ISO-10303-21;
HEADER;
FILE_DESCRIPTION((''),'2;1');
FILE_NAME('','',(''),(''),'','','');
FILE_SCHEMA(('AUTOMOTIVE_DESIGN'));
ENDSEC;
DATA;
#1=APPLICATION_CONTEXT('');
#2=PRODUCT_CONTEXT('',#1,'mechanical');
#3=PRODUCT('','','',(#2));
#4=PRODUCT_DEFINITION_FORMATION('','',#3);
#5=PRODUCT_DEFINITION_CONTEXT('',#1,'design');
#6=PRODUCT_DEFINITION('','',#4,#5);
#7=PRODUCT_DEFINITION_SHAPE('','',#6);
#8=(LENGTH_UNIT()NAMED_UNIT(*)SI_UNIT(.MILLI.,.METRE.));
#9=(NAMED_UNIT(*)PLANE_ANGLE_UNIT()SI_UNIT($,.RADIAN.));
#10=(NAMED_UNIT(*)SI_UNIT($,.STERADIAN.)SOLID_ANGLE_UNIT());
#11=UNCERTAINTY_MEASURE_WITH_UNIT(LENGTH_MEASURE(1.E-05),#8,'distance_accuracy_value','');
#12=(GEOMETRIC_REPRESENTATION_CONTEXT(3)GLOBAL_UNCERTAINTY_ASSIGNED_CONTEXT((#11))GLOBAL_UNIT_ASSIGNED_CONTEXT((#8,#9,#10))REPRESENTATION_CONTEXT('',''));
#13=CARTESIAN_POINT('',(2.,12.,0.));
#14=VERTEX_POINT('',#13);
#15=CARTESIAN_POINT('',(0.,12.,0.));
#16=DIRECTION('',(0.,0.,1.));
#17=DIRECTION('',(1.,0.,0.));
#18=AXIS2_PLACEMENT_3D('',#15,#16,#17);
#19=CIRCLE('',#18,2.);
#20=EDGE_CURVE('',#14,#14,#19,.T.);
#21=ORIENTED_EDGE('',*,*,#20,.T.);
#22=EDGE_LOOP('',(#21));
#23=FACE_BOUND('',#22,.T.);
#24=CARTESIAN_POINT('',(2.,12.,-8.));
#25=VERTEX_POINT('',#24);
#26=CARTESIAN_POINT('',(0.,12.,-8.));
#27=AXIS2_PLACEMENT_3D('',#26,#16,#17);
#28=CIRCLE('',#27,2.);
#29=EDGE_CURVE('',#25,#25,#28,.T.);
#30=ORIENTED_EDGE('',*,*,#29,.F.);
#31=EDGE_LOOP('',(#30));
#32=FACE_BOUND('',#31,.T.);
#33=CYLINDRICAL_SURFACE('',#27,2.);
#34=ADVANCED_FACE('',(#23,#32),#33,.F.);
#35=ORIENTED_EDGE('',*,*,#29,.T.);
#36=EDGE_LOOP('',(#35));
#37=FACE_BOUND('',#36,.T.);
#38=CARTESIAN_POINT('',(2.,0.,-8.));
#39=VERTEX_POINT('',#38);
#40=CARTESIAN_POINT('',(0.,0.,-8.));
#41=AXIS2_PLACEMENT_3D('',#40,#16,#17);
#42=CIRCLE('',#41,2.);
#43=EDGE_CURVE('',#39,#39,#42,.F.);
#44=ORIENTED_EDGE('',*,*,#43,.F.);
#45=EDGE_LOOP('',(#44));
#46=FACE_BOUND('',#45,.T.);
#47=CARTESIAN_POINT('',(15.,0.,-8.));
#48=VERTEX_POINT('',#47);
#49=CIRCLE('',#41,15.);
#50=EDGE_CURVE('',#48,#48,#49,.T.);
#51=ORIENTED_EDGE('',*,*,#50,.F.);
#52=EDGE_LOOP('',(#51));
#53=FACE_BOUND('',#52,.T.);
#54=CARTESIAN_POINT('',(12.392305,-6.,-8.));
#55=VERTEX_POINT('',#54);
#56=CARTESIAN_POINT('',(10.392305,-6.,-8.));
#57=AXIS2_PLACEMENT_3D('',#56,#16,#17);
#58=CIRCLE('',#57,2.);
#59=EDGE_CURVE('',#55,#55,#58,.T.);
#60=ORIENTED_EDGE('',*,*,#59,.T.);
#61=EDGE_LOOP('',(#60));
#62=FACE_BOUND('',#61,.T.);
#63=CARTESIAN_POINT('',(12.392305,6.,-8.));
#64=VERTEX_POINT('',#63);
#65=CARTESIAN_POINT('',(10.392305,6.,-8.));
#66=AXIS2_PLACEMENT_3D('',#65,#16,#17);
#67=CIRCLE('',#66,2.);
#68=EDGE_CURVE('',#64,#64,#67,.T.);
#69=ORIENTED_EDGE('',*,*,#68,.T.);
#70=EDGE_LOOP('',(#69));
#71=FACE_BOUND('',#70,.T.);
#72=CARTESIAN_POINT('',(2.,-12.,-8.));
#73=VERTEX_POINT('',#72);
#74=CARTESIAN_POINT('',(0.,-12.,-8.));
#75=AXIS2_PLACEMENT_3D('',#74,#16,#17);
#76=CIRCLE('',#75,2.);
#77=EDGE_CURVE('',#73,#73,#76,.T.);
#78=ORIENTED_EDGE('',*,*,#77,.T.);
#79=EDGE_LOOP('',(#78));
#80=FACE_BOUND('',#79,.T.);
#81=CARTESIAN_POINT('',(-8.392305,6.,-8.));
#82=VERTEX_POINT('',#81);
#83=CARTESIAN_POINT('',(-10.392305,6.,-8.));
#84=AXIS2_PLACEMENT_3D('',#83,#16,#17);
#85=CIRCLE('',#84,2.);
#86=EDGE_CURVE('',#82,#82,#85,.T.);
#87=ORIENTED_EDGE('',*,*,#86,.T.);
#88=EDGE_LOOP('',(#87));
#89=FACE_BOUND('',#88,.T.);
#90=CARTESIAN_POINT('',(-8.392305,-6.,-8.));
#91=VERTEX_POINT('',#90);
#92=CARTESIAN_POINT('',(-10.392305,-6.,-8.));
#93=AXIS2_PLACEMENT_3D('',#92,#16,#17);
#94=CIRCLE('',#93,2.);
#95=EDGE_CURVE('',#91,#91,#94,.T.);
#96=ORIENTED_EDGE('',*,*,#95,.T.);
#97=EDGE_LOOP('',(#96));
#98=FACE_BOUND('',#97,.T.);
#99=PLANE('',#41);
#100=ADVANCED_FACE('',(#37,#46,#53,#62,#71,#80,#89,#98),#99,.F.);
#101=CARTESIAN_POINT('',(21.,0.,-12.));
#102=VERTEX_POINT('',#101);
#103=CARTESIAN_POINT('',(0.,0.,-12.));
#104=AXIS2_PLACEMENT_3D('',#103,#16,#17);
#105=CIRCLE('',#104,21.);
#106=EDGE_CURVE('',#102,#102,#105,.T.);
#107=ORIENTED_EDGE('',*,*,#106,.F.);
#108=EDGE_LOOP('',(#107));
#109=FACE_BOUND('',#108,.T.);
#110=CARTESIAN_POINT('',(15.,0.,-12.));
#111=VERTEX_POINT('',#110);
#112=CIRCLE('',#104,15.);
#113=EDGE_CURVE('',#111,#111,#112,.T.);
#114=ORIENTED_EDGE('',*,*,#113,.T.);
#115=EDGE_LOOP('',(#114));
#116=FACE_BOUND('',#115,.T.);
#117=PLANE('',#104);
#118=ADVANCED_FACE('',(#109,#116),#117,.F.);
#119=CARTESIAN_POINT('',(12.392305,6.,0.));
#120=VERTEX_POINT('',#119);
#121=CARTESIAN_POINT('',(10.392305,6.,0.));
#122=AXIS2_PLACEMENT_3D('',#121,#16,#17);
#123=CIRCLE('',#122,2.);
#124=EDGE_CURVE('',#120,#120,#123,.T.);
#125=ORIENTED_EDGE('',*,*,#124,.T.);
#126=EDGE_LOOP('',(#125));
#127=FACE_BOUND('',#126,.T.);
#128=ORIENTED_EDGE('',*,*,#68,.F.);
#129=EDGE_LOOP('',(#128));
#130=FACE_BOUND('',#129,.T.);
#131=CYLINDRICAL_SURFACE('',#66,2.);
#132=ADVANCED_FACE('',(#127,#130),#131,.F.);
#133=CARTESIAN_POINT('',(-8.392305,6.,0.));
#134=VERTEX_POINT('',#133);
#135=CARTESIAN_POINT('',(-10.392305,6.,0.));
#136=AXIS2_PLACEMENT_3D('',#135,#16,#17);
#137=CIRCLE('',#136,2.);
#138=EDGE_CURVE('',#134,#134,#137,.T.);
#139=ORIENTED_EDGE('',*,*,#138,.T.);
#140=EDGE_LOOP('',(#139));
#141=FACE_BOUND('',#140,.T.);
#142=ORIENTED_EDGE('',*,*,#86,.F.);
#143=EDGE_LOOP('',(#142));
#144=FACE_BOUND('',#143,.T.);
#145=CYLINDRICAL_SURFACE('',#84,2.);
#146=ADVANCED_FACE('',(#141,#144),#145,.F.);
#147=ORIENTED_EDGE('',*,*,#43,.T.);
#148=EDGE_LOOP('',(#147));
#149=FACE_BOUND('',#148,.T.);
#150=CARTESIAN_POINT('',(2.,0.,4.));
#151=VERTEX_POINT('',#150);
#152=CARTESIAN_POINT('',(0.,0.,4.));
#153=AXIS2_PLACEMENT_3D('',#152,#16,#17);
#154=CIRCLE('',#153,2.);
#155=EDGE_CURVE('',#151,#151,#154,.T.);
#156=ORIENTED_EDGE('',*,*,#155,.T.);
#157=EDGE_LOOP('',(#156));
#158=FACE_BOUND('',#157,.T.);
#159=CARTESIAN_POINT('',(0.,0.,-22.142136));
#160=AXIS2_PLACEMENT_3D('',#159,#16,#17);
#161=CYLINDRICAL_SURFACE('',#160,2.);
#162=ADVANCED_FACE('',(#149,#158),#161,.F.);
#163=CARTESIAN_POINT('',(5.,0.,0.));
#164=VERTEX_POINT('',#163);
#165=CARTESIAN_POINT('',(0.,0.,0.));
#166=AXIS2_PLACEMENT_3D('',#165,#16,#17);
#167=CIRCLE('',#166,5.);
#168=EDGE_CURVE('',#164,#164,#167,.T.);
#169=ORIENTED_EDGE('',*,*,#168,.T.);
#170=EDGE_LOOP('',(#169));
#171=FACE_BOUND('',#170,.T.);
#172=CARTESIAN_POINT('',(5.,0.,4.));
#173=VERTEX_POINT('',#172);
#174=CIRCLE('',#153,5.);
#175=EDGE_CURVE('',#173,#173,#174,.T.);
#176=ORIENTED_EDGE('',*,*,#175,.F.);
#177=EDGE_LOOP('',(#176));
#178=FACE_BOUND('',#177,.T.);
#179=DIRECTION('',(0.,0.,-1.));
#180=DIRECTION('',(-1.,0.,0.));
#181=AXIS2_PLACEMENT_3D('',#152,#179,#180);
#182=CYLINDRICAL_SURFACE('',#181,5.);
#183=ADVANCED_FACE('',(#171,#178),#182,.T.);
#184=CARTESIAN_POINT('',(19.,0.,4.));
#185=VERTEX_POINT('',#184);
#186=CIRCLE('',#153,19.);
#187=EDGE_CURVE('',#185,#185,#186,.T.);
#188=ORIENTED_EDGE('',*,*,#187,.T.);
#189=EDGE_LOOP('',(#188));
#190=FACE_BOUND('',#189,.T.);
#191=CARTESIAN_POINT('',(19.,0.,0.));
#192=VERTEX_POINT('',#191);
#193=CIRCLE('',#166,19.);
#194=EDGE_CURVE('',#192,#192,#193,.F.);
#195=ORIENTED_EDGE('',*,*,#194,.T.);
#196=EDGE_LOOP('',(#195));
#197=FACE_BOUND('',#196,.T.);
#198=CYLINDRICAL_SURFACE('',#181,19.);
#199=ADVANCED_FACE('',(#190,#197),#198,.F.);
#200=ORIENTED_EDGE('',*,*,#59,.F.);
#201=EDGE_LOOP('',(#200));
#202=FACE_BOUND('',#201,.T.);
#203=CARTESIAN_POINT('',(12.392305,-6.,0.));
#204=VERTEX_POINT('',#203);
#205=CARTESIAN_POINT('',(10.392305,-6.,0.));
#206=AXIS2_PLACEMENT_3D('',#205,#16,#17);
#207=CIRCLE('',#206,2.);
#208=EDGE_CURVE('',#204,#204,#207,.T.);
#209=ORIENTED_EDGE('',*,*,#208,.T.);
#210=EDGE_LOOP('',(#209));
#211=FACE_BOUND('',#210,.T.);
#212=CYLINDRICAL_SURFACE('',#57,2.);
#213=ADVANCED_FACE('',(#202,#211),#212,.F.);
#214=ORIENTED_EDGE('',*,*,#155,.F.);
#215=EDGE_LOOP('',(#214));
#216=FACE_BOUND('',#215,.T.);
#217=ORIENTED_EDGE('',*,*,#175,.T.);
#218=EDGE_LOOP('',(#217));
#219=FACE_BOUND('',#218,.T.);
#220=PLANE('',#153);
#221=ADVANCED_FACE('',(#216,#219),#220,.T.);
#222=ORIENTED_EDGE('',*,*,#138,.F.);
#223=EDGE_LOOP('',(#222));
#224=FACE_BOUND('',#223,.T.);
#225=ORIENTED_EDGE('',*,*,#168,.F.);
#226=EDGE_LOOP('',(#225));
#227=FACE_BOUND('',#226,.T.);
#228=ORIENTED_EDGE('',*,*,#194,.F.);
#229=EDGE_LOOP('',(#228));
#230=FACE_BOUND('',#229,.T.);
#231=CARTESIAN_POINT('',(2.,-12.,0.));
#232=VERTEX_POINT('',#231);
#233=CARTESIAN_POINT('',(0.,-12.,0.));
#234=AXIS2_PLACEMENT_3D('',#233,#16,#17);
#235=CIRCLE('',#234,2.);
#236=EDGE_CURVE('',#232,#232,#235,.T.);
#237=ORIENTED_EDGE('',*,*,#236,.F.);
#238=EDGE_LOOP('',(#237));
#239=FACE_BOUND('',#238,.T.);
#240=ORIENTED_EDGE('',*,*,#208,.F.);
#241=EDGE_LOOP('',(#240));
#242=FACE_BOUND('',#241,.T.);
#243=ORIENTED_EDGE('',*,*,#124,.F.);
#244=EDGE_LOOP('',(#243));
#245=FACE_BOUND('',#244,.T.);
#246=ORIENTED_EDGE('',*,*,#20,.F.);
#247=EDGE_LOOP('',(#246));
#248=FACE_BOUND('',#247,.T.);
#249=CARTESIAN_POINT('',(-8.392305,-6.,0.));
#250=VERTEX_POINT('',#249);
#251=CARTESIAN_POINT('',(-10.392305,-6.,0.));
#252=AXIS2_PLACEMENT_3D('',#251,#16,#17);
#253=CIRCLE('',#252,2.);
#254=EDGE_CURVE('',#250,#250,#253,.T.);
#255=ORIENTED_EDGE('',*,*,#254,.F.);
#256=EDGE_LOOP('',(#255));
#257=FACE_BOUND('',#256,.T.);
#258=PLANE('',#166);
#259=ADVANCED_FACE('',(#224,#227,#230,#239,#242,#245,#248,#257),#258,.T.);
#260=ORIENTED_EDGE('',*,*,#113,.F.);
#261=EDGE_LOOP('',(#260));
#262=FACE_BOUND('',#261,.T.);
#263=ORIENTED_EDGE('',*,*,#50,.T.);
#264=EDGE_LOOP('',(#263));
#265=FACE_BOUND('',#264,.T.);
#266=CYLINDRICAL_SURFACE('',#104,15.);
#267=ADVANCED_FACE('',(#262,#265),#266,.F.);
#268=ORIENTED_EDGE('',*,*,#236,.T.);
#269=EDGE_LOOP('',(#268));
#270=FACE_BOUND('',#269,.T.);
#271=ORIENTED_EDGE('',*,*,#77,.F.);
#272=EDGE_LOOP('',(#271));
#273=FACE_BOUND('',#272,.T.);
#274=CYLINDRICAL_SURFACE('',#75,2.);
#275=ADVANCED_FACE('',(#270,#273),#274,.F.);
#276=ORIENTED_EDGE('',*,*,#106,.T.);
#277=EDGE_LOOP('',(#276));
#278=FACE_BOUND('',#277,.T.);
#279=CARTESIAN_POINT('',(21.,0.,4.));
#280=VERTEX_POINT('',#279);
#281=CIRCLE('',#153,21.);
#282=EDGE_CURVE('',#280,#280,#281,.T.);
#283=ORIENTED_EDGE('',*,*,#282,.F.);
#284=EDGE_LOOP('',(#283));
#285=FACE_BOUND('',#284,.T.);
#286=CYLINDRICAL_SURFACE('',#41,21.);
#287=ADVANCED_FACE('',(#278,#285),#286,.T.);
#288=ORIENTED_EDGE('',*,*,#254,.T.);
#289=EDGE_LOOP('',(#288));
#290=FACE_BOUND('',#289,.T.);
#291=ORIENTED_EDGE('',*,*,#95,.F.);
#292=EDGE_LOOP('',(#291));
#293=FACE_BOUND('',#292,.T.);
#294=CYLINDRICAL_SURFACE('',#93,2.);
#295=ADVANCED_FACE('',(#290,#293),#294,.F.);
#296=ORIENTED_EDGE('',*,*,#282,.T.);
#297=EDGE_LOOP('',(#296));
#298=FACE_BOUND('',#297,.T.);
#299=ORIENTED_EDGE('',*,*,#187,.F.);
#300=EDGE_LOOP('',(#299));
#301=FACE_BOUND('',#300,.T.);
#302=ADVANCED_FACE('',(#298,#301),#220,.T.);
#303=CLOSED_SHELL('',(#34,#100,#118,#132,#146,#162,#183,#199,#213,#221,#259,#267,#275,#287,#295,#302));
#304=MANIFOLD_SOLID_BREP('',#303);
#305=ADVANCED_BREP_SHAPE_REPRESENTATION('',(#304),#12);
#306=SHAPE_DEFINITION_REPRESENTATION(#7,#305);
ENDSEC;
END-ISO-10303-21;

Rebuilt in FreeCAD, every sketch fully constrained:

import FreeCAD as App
import Part
import Sketcher
from FreeCAD import Vector

doc = App.newDocument("Part")
body = doc.addObject("PartDesign::Body", "Body")

# Sketch on XY plane
sketch1 = body.newObject("Sketcher::SketchObject", "Sketch")
sketch1.AttachmentSupport = (doc.getObject("XY_Plane"), [""])
sketch1.MapMode = "FlatFace"
sketch1.addGeometry(Part.Circle(Vector(0, 0, 0), Vector(0, 0, 1), 21), False)
sketch1.addGeometry(Part.Circle(Vector(0, -12, 0), Vector(0, 0, 1), 2), False)
sketch1.addGeometry(Part.Circle(Vector(-10.392305, -6, 0), Vector(0, 0, 1), 2), False)
sketch1.addGeometry(Part.Circle(Vector(10.392305, -6, 0), Vector(0, 0, 1), 2), False)
sketch1.addGeometry(Part.Circle(Vector(-10.392305, 6, 0), Vector(0, 0, 1), 2), False)
sketch1.addGeometry(Part.Circle(Vector(0, 0, 0), Vector(0, 0, 1), 5), False)
sketch1.addGeometry(Part.Circle(Vector(0, 12, 0), Vector(0, 0, 1), 2), False)
sketch1.addGeometry(Part.Circle(Vector(10.392305, 6, 0), Vector(0, 0, 1), 2), False)
sketch1.addConstraint(Sketcher.Constraint("Coincident", 0, 3, -1, 1))
sketch1.addConstraint(Sketcher.Constraint("Coincident", 5, 3, -1, 1))
sketch1.addConstraint(Sketcher.Constraint("Equal", 1, 2))
sketch1.addConstraint(Sketcher.Constraint("Equal", 2, 3))
sketch1.addConstraint(Sketcher.Constraint("Equal", 3, 4))
sketch1.addConstraint(Sketcher.Constraint("Equal", 4, 6))
sketch1.addConstraint(Sketcher.Constraint("Equal", 6, 7))
sketch1.addConstraint(Sketcher.Constraint("Symmetric", 3, 3, 4, 3, -1, 1))
sketch1.addConstraint(Sketcher.Constraint("Symmetric", 1, 3, 6, 3, -1, 1))
sketch1.addConstraint(Sketcher.Constraint("Symmetric", 2, 3, 7, 3, -1, 1))
sketch1.addConstraint(Sketcher.Constraint("Symmetric", 2, 3, 3, 3, -2))
sketch1.addConstraint(Sketcher.Constraint("PointOnObject", 1, 3, -2))
sketch1.addConstraint(Sketcher.Constraint("Diameter", 0, 42.0))
sketch1.addConstraint(Sketcher.Constraint("Diameter", 1, 4.0))
sketch1.addConstraint(Sketcher.Constraint("Diameter", 5, 10.0))
sketch1.addConstraint(Sketcher.Constraint("DistanceY", 1, 3, -1, 1, 12.0))
sketch1.addConstraint(Sketcher.Constraint("DistanceY", 2, 3, -1, 1, 6.0))
sketch1.addConstraint(Sketcher.Constraint("DistanceX", 2, 3, 3, 3, 20.78461))
pad1 = body.newObject("PartDesign::Pad", "Pad")
pad1.Profile = sketch1
pad1.Length = 8
pad1.Reversed = True

# Sketch on XY plane
sketch2 = body.newObject("Sketcher::SketchObject", "Sketch001")
sketch2.AttachmentSupport = (doc.getObject("XY_Plane"), [""])
sketch2.MapMode = "FlatFace"
sketch2.AttachmentOffset = App.Placement(Vector(0, 0, 4), App.Rotation())
sketch2.addGeometry(Part.Circle(Vector(0, 0, 0), Vector(0, 0, 1), 21), False)
sketch2.addGeometry(Part.Circle(Vector(0, 0, 0), Vector(0, 0, 1), 19), False)
sketch2.addConstraint(Sketcher.Constraint("Coincident", 0, 3, -1, 1))
sketch2.addConstraint(Sketcher.Constraint("Coincident", 1, 3, -1, 1))
sketch2.addConstraint(Sketcher.Constraint("Diameter", 0, 42.0))
sketch2.addConstraint(Sketcher.Constraint("Diameter", 1, 38.0))
pad2 = body.newObject("PartDesign::Pad", "Pad001")
pad2.Profile = sketch2
pad2.Length = 4
pad2.Reversed = True

# Sketch on XY plane
sketch3 = body.newObject("Sketcher::SketchObject", "Sketch002")
sketch3.AttachmentSupport = (doc.getObject("XY_Plane"), [""])
sketch3.MapMode = "FlatFace"
sketch3.addGeometry(Part.Circle(Vector(0, 0, 0), Vector(0, 0, 1), 21), False)
sketch3.addGeometry(Part.Circle(Vector(0, 0, 0), Vector(0, 0, 1), 15), False)
sketch3.addConstraint(Sketcher.Constraint("Coincident", 0, 3, -1, 1))
sketch3.addConstraint(Sketcher.Constraint("Coincident", 1, 3, -1, 1))
sketch3.addConstraint(Sketcher.Constraint("Diameter", 0, 42.0))
sketch3.addConstraint(Sketcher.Constraint("Diameter", 1, 30.0))
pad3 = body.newObject("PartDesign::Pad", "Pad002")
pad3.Profile = sketch3
pad3.Length = 12
pad3.Reversed = True
body2 = doc.addObject("PartDesign::Body", "Body001")

# Sketch on XY plane
sketch4 = body2.newObject("Sketcher::SketchObject", "Sketch003")
sketch4.AttachmentSupport = (doc.getObject("XY_Plane001"), [""])
sketch4.MapMode = "FlatFace"
sketch4.addGeometry(Part.Circle(Vector(0, 0, 0), Vector(0, 0, 1), 5), False)
sketch4.addGeometry(Part.Circle(Vector(0, 0, 0), Vector(0, 0, 1), 2), False)
sketch4.addConstraint(Sketcher.Constraint("Coincident", 0, 3, -1, 1))
sketch4.addConstraint(Sketcher.Constraint("Coincident", 1, 3, -1, 1))
sketch4.addConstraint(Sketcher.Constraint("Diameter", 0, 10.0))
sketch4.addConstraint(Sketcher.Constraint("Diameter", 1, 4.0))
pad4 = body2.newObject("PartDesign::Pad", "Pad003")
pad4.Profile = sketch4
pad4.Length = 4

# Sketch on XY plane
sketch5 = body2.newObject("Sketcher::SketchObject", "Sketch004")
sketch5.AttachmentSupport = (doc.getObject("XY_Plane001"), [""])
sketch5.MapMode = "FlatFace"
sketch5.AttachmentOffset = App.Placement(Vector(0, 0, 4), App.Rotation())
sketch5.addGeometry(Part.Circle(Vector(0, 0, 0), Vector(0, 0, 1), 5), False)
sketch5.addGeometry(Part.Circle(Vector(0, 0, 0), Vector(0, 0, 1), 2), False)
sketch5.addConstraint(Sketcher.Constraint("Coincident", 0, 3, -1, 1))
sketch5.addConstraint(Sketcher.Constraint("Coincident", 1, 3, -1, 1))
sketch5.addConstraint(Sketcher.Constraint("Diameter", 0, 10.0))
sketch5.addConstraint(Sketcher.Constraint("Diameter", 1, 4.0))
pad5 = body2.newObject("PartDesign::Pad", "Pad004")
pad5.Profile = sketch5
pad5.Length = 4
pad5.Reversed = True
body.AllowCompound = True
doc.recompute()

boolean = body.newObject("PartDesign::Boolean", "Boolean")
boolean.Type = "Fuse"
boolean.addObjects([body2])

# Sketch on XY plane
sketch6 = body.newObject("Sketcher::SketchObject", "Sketch005")
sketch6.AttachmentSupport = (doc.getObject("XY_Plane"), [""])
sketch6.MapMode = "FlatFace"
sketch6.addGeometry(Part.Circle(Vector(0, 0, 0), Vector(0, 0, 1), 5), False)
sketch6.addGeometry(Part.Circle(Vector(0, 0, 0), Vector(0, 0, 1), 2), False)
sketch6.addConstraint(Sketcher.Constraint("Coincident", 0, 3, -1, 1))
sketch6.addConstraint(Sketcher.Constraint("Coincident", 1, 3, -1, 1))
sketch6.addConstraint(Sketcher.Constraint("Diameter", 0, 10.0))
sketch6.addConstraint(Sketcher.Constraint("Diameter", 1, 4.0))
pad6 = body.newObject("PartDesign::Pad", "Pad005")
pad6.Profile = sketch6
pad6.Length = 8
pad6.Reversed = True

doc.recompute()
